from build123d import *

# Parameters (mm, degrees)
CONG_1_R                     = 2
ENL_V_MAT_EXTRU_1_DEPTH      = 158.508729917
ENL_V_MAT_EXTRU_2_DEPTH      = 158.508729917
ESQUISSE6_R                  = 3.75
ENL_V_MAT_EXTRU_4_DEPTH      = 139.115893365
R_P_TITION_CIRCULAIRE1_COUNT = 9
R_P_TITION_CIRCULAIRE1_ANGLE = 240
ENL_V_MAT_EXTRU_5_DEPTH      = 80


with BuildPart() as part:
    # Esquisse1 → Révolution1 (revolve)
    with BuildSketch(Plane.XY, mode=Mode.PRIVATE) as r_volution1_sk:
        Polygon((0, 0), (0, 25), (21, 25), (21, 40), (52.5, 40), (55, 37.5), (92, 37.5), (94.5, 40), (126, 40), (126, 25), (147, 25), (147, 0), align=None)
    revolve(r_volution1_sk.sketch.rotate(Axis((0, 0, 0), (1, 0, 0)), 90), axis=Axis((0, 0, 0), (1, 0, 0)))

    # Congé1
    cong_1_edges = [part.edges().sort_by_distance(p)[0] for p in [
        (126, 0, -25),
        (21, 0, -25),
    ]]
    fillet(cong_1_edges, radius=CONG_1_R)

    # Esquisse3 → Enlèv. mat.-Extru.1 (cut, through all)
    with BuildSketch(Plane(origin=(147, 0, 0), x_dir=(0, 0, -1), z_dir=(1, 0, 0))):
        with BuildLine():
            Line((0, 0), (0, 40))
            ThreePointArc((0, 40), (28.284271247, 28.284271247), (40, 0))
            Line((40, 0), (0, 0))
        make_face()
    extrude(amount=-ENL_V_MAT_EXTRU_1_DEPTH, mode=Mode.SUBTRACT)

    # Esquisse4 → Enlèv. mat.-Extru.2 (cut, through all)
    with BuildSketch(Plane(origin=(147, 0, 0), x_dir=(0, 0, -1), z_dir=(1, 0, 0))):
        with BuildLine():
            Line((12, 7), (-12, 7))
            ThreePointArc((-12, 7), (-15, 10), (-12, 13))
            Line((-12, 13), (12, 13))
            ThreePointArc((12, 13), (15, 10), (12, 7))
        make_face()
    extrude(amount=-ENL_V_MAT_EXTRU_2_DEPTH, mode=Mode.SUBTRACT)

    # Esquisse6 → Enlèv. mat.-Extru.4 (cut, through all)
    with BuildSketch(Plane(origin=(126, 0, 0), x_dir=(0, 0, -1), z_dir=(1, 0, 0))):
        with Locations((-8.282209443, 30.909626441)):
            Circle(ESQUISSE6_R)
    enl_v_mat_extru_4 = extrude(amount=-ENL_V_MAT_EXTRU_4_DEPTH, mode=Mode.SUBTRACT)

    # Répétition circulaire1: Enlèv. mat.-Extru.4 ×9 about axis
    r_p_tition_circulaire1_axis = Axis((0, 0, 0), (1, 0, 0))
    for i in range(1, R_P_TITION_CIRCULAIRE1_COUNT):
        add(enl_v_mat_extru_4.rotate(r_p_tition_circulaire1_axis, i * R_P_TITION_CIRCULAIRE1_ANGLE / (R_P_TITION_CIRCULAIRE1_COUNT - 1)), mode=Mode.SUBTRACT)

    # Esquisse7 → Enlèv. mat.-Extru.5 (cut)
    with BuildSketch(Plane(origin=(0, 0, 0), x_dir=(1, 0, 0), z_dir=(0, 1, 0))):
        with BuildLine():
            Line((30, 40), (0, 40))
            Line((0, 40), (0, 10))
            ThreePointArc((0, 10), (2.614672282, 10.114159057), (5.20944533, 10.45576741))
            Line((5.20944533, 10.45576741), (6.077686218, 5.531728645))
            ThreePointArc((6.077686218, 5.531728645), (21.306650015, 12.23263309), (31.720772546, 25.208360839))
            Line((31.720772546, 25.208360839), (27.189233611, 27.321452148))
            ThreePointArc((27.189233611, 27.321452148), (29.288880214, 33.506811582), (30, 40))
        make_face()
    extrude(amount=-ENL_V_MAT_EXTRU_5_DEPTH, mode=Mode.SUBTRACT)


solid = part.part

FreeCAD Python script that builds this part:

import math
import FreeCAD as App
import Part
import Sketcher

V = App.Vector
Q = App.Units.Quantity


def edges_at(feature, points):
    """Names of the edges that pass closest to the given points."""
    edges = feature.Shape.Edges
    near = lambda p: min(range(len(edges)), key=lambda i: edges[i].distToShape(Part.Vertex(*p))[0])
    return sorted({f"Edge{near(p) + 1}" for p in points})

doc = App.newDocument("Part")
body = doc.addObject("PartDesign::Body", "Body")

# Sketch on XY plane
sketch1 = body.newObject("Sketcher::SketchObject", "Sketch")
sketch1.AttachmentSupport = (doc.getObject("XY_Plane"), [""])
sketch1.MapMode = "FlatFace"
sketch1.addGeometry([
    Part.LineSegment(V(0, 25, 0), V(0, 0, 0)),  # 0
    Part.LineSegment(V(0, 0, 0), V(147, 0, 0)),  # 1
    Part.LineSegment(V(147, 0, 0), V(147, 25, 0)),  # 2
    Part.LineSegment(V(147, 25, 0), V(126, 25, 0)),  # 3
    Part.LineSegment(V(126, 25, 0), V(126, 40, 0)),  # 4
    Part.LineSegment(V(126, 40, 0), V(94.5, 40, 0)),  # 5
    Part.LineSegment(V(94.5, 40, 0), V(92, 37.5, 0)),  # 6
    Part.LineSegment(V(92, 37.5, 0), V(55, 37.5, 0)),  # 7
    Part.LineSegment(V(55, 37.5, 0), V(52.5, 40, 0)),  # 8
    Part.LineSegment(V(52.5, 40, 0), V(21, 40, 0)),  # 9
    Part.LineSegment(V(21, 40, 0), V(21, 25, 0)),  # 10
    Part.LineSegment(V(21, 25, 0), V(0, 25, 0)),  # 11
], False)
sketch1.addConstraint([
    Sketcher.Constraint("Coincident", 0, 2, 1, 1),
    Sketcher.Constraint("Coincident", 1, 2, 2, 1),
    Sketcher.Constraint("Coincident", 2, 2, 3, 1),
    Sketcher.Constraint("Coincident", 3, 2, 4, 1),
    Sketcher.Constraint("Coincident", 4, 2, 5, 1),
    Sketcher.Constraint("Coincident", 5, 2, 6, 1),
    Sketcher.Constraint("Coincident", 6, 2, 7, 1),
    Sketcher.Constraint("Coincident", 7, 2, 8, 1),
    Sketcher.Constraint("Coincident", 8, 2, 9, 1),
    Sketcher.Constraint("Coincident", 9, 2, 10, 1),
    Sketcher.Constraint("Coincident", 10, 2, 11, 1),
    Sketcher.Constraint("Coincident", 11, 2, 0, 1),
    Sketcher.Constraint("Vertical", 0),
    Sketcher.Constraint("Horizontal", 1),
    Sketcher.Constraint("Vertical", 2),
    Sketcher.Constraint("Horizontal", 3),
    Sketcher.Constraint("Vertical", 4),
    Sketcher.Constraint("Horizontal", 5),
    Sketcher.Constraint("Horizontal", 7),
    Sketcher.Constraint("Horizontal", 9),
    Sketcher.Constraint("Vertical", 10),
    Sketcher.Constraint("Horizontal", 11),
    Sketcher.Constraint("Coincident", 0, 2, -1, 1),
    Sketcher.Constraint("Perpendicular", 6, 8),
    Sketcher.Constraint("Horizontal", 5, 2, 8, 2),
    Sketcher.Constraint("Horizontal", 3, 2, 10, 2),
    Sketcher.Constraint("Equal", 5, 9),
    Sketcher.Constraint("Equal", 3, 11),
    Sketcher.Constraint("Equal", 6, 8),
    Sketcher.Constraint("DistanceX", 1, 1, 1, 2, 147.0),
    Sketcher.Constraint("DistanceX", 3, 2, 3, 1, 21.0),
    Sketcher.Constraint("DistanceX", 7, 2, 7, 1, 37.0),
    Sketcher.Constraint("DistanceY", 0, 2, 0, 1, 25.0),
    Sketcher.Constraint("DistanceY", 4, 1, 4, 2, 15.0),
    Sketcher.Constraint("DistanceX", 5, 2, 5, 1, 31.5),
])
revolution = body.newObject("PartDesign::Revolution", "Revolution")
revolution.Profile = sketch1
revolution.ReferenceAxis = (sketch1, ["H_Axis"])
revolution.Angle = 360
doc.recompute()

fillet = body.newObject("PartDesign::Fillet", "Fillet")
fillet.Base = (revolution, edges_at(revolution, [(126, 0, -25), (21, 0, -25)]))
fillet.Radius = 2

# Sketch on YZ plane
sketch2 = body.newObject("Sketcher::SketchObject", "Sketch001")
sketch2.AttachmentSupport = (doc.getObject("YZ_Plane"), [""])
sketch2.MapMode = "FlatFace"
sketch2.AttachmentOffset = App.Placement(V(0, 0, 147), App.Rotation())
sketch2.addGeometry([
    Part.LineSegment(V(40, 0, 0), V(0, 0, 0)),
    Part.LineSegment(V(0, 0, 0), V(0, -40, 0)),
    Part.ArcOfCircle(Part.Circle(V(0, 0, 0), V(0, 0, 1), 40), math.radians(-90), math.radians(0)),
], False)
sketch2.addConstraint([
    Sketcher.Constraint("Coincident", 0, 2, 1, 1),
    Sketcher.Constraint("Coincident", 1, 2, 2, 1),
    Sketcher.Constraint("Coincident", 2, 2, 0, 1),
    Sketcher.Constraint("Horizontal", 0),
    Sketcher.Constraint("Vertical", 1),
    Sketcher.Constraint("Coincident", 2, 3, -1, 1),
    Sketcher.Constraint("Coincident", 0, 2, -1, 1),
    Sketcher.Constraint("Radius", 2, 40.0),
])
pocket1 = body.newObject("PartDesign::Pocket", "Pocket")
pocket1.Profile = sketch2
pocket1.Type = "ThroughAll"

# Sketch on YZ plane
sketch3 = body.newObject("Sketcher::SketchObject", "Sketch002")
sketch3.AttachmentSupport = (doc.getObject("YZ_Plane"), [""])
sketch3.MapMode = "FlatFace"
sketch3.AttachmentOffset = App.Placement(V(0, 0, 147), App.Rotation())
sketch3.addGeometry([
    Part.LineSegment(V(7, 12, 0), V(7, -12, 0)),
    Part.ArcOfCircle(Part.Circle(V(10, -12, 0), V(0, 0, 1), 3), math.radians(180), math.radians(360)),
    Part.LineSegment(V(13, -12, 0), V(13, 12, 0)),
    Part.ArcOfCircle(Part.Circle(V(10, 12, 0), V(0, 0, 1), 3), math.radians(0), math.radians(180)),
], False)
sketch3.addConstraint([
    Sketcher.Constraint("Tangent", 0, 2, 1, 1),
    Sketcher.Constraint("Tangent", 1, 2, 2, 1),
    Sketcher.Constraint("Tangent", 2, 2, 3, 1),
    Sketcher.Constraint("Tangent", 3, 2, 0, 1),
    Sketcher.Constraint("Vertical", 0),
    Sketcher.Constraint("Vertical", 2),
    Sketcher.Constraint("Radius", 1, 3.0),
    Sketcher.Constraint("DistanceY", 0, 2, 0, 1, 24.0),
    Sketcher.Constraint("DistanceX", -1, 1, 1, 3, 10.0),
    Sketcher.Constraint("DistanceY", 1, 3, -1, 1, 12.0),
])
pocket2 = body.newObject("PartDesign::Pocket", "Pocket001")
pocket2.Profile = sketch3
pocket2.Type = "ThroughAll"

# Sketch on YZ plane
sketch4 = body.newObject("Sketcher::SketchObject", "Sketch003")
sketch4.AttachmentSupport = (doc.getObject("YZ_Plane"), [""])
sketch4.MapMode = "FlatFace"
sketch4.AttachmentOffset = App.Placement(V(0, 0, 126), App.Rotation())
sketch4.addGeometry(Part.Circle(V(30.9, 8.3, 0), V(0, 0, 1), 3.8), False)
sketch4.addConstraint([
    Sketcher.Constraint("Diameter", 0, 7.5),
    Sketcher.Constraint("DistanceY", -1, 1, 0, 3, 8.282209),
    Sketcher.Constraint("DistanceX", -1, 1, 0, 3, 30.909626),
])
pocket3 = body.newObject("PartDesign::Pocket", "Pocket002")
pocket3.Profile = sketch4
pocket3.Type = "ThroughAll"
doc.recompute()

polarpattern = body.newObject("PartDesign::PolarPattern", "PolarPattern")
polarpattern.Originals = [pocket3]
polarpattern.Axis = (doc.getObject("X_Axis"), [""])
polarpattern.Angle = 240
polarpattern.Occurrences = 9
body.Tip = polarpattern

# Sketch on XZ plane
sketch5 = body.newObject("Sketcher::SketchObject", "Sketch004")
sketch5.AttachmentSupport = (doc.getObject("XZ_Plane"), [""])
sketch5.MapMode = "FlatFace"
sketch5.addGeometry([
    Part.LineSegment(V(30, -40, 0), V(0, -40, 0)),  # 0
    Part.LineSegment(V(0, -40, 0), V(0, -10, 0)),  # 1
    Part.ArcOfCircle(Part.Circle(V(0, -40, 0), V(0, 0, 1), 30), math.radians(80), math.radians(90)),  # 2
    Part.LineSegment(V(5.2, -10.5, 0), V(6.1, -5.5, 0)),  # 3
    Part.ArcOfCircle(Part.Circle(V(0, -40, 0), V(0, 0, 1), 35), math.radians(25), math.radians(80)),  # 4
    Part.LineSegment(V(31.7, -25.2, 0), V(27.2, -27.3, 0)),  # 5
    Part.ArcOfCircle(Part.Circle(V(0, -40, 0), V(0, 0, 1), 30), math.radians(0), math.radians(25)),  # 6
], False)
sketch5.addConstraint([
    Sketcher.Constraint("Coincident", 0, 2, 1, 1),
    Sketcher.Constraint("Coincident", 1, 2, 2, 2),
    Sketcher.Constraint("Coincident", 2, 1, 3, 1),
    Sketcher.Constraint("Coincident", 3, 2, 4, 2),
    Sketcher.Constraint("Coincident", 4, 1, 5, 1),
    Sketcher.Constraint("Coincident", 5, 2, 6, 2),
    Sketcher.Constraint("Coincident", 6, 1, 0, 1),
    Sketcher.Constraint("Horizontal", 0),
    Sketcher.Constraint("Vertical", 1),
    Sketcher.Constraint("Coincident", 4, 3, 2, 3),
    Sketcher.Constraint("Coincident", 6, 3, 2, 3),
    Sketcher.Constraint("Coincident", 0, 2, 2, 3),
    Sketcher.Constraint("Equal", 2, 6),
    Sketcher.Constraint("PointOnObject", 2, 3, -2),
    Sketcher.Constraint("Radius", 2, 30.0),
    Sketcher.Constraint("Radius", 4, 35.0),
    Sketcher.Constraint("Angle", 3, Q("80 deg")),
    Sketcher.Constraint("Angle", 5, Q("-155 deg")),
    Sketcher.Constraint("DistanceY", 2, 3, -1, 1, 40.0),
    Sketcher.Constraint("DistanceY", 3, 2, -1, 1, 5.531729),
    Sketcher.Constraint("DistanceY", 4, 1, -1, 1, 25.208361),
])
pocket4 = body.newObject("PartDesign::Pocket", "Pocket003")
pocket4.Profile = sketch5
pocket4.Length = 80
pocket4.Reversed = True

doc.recompute()
